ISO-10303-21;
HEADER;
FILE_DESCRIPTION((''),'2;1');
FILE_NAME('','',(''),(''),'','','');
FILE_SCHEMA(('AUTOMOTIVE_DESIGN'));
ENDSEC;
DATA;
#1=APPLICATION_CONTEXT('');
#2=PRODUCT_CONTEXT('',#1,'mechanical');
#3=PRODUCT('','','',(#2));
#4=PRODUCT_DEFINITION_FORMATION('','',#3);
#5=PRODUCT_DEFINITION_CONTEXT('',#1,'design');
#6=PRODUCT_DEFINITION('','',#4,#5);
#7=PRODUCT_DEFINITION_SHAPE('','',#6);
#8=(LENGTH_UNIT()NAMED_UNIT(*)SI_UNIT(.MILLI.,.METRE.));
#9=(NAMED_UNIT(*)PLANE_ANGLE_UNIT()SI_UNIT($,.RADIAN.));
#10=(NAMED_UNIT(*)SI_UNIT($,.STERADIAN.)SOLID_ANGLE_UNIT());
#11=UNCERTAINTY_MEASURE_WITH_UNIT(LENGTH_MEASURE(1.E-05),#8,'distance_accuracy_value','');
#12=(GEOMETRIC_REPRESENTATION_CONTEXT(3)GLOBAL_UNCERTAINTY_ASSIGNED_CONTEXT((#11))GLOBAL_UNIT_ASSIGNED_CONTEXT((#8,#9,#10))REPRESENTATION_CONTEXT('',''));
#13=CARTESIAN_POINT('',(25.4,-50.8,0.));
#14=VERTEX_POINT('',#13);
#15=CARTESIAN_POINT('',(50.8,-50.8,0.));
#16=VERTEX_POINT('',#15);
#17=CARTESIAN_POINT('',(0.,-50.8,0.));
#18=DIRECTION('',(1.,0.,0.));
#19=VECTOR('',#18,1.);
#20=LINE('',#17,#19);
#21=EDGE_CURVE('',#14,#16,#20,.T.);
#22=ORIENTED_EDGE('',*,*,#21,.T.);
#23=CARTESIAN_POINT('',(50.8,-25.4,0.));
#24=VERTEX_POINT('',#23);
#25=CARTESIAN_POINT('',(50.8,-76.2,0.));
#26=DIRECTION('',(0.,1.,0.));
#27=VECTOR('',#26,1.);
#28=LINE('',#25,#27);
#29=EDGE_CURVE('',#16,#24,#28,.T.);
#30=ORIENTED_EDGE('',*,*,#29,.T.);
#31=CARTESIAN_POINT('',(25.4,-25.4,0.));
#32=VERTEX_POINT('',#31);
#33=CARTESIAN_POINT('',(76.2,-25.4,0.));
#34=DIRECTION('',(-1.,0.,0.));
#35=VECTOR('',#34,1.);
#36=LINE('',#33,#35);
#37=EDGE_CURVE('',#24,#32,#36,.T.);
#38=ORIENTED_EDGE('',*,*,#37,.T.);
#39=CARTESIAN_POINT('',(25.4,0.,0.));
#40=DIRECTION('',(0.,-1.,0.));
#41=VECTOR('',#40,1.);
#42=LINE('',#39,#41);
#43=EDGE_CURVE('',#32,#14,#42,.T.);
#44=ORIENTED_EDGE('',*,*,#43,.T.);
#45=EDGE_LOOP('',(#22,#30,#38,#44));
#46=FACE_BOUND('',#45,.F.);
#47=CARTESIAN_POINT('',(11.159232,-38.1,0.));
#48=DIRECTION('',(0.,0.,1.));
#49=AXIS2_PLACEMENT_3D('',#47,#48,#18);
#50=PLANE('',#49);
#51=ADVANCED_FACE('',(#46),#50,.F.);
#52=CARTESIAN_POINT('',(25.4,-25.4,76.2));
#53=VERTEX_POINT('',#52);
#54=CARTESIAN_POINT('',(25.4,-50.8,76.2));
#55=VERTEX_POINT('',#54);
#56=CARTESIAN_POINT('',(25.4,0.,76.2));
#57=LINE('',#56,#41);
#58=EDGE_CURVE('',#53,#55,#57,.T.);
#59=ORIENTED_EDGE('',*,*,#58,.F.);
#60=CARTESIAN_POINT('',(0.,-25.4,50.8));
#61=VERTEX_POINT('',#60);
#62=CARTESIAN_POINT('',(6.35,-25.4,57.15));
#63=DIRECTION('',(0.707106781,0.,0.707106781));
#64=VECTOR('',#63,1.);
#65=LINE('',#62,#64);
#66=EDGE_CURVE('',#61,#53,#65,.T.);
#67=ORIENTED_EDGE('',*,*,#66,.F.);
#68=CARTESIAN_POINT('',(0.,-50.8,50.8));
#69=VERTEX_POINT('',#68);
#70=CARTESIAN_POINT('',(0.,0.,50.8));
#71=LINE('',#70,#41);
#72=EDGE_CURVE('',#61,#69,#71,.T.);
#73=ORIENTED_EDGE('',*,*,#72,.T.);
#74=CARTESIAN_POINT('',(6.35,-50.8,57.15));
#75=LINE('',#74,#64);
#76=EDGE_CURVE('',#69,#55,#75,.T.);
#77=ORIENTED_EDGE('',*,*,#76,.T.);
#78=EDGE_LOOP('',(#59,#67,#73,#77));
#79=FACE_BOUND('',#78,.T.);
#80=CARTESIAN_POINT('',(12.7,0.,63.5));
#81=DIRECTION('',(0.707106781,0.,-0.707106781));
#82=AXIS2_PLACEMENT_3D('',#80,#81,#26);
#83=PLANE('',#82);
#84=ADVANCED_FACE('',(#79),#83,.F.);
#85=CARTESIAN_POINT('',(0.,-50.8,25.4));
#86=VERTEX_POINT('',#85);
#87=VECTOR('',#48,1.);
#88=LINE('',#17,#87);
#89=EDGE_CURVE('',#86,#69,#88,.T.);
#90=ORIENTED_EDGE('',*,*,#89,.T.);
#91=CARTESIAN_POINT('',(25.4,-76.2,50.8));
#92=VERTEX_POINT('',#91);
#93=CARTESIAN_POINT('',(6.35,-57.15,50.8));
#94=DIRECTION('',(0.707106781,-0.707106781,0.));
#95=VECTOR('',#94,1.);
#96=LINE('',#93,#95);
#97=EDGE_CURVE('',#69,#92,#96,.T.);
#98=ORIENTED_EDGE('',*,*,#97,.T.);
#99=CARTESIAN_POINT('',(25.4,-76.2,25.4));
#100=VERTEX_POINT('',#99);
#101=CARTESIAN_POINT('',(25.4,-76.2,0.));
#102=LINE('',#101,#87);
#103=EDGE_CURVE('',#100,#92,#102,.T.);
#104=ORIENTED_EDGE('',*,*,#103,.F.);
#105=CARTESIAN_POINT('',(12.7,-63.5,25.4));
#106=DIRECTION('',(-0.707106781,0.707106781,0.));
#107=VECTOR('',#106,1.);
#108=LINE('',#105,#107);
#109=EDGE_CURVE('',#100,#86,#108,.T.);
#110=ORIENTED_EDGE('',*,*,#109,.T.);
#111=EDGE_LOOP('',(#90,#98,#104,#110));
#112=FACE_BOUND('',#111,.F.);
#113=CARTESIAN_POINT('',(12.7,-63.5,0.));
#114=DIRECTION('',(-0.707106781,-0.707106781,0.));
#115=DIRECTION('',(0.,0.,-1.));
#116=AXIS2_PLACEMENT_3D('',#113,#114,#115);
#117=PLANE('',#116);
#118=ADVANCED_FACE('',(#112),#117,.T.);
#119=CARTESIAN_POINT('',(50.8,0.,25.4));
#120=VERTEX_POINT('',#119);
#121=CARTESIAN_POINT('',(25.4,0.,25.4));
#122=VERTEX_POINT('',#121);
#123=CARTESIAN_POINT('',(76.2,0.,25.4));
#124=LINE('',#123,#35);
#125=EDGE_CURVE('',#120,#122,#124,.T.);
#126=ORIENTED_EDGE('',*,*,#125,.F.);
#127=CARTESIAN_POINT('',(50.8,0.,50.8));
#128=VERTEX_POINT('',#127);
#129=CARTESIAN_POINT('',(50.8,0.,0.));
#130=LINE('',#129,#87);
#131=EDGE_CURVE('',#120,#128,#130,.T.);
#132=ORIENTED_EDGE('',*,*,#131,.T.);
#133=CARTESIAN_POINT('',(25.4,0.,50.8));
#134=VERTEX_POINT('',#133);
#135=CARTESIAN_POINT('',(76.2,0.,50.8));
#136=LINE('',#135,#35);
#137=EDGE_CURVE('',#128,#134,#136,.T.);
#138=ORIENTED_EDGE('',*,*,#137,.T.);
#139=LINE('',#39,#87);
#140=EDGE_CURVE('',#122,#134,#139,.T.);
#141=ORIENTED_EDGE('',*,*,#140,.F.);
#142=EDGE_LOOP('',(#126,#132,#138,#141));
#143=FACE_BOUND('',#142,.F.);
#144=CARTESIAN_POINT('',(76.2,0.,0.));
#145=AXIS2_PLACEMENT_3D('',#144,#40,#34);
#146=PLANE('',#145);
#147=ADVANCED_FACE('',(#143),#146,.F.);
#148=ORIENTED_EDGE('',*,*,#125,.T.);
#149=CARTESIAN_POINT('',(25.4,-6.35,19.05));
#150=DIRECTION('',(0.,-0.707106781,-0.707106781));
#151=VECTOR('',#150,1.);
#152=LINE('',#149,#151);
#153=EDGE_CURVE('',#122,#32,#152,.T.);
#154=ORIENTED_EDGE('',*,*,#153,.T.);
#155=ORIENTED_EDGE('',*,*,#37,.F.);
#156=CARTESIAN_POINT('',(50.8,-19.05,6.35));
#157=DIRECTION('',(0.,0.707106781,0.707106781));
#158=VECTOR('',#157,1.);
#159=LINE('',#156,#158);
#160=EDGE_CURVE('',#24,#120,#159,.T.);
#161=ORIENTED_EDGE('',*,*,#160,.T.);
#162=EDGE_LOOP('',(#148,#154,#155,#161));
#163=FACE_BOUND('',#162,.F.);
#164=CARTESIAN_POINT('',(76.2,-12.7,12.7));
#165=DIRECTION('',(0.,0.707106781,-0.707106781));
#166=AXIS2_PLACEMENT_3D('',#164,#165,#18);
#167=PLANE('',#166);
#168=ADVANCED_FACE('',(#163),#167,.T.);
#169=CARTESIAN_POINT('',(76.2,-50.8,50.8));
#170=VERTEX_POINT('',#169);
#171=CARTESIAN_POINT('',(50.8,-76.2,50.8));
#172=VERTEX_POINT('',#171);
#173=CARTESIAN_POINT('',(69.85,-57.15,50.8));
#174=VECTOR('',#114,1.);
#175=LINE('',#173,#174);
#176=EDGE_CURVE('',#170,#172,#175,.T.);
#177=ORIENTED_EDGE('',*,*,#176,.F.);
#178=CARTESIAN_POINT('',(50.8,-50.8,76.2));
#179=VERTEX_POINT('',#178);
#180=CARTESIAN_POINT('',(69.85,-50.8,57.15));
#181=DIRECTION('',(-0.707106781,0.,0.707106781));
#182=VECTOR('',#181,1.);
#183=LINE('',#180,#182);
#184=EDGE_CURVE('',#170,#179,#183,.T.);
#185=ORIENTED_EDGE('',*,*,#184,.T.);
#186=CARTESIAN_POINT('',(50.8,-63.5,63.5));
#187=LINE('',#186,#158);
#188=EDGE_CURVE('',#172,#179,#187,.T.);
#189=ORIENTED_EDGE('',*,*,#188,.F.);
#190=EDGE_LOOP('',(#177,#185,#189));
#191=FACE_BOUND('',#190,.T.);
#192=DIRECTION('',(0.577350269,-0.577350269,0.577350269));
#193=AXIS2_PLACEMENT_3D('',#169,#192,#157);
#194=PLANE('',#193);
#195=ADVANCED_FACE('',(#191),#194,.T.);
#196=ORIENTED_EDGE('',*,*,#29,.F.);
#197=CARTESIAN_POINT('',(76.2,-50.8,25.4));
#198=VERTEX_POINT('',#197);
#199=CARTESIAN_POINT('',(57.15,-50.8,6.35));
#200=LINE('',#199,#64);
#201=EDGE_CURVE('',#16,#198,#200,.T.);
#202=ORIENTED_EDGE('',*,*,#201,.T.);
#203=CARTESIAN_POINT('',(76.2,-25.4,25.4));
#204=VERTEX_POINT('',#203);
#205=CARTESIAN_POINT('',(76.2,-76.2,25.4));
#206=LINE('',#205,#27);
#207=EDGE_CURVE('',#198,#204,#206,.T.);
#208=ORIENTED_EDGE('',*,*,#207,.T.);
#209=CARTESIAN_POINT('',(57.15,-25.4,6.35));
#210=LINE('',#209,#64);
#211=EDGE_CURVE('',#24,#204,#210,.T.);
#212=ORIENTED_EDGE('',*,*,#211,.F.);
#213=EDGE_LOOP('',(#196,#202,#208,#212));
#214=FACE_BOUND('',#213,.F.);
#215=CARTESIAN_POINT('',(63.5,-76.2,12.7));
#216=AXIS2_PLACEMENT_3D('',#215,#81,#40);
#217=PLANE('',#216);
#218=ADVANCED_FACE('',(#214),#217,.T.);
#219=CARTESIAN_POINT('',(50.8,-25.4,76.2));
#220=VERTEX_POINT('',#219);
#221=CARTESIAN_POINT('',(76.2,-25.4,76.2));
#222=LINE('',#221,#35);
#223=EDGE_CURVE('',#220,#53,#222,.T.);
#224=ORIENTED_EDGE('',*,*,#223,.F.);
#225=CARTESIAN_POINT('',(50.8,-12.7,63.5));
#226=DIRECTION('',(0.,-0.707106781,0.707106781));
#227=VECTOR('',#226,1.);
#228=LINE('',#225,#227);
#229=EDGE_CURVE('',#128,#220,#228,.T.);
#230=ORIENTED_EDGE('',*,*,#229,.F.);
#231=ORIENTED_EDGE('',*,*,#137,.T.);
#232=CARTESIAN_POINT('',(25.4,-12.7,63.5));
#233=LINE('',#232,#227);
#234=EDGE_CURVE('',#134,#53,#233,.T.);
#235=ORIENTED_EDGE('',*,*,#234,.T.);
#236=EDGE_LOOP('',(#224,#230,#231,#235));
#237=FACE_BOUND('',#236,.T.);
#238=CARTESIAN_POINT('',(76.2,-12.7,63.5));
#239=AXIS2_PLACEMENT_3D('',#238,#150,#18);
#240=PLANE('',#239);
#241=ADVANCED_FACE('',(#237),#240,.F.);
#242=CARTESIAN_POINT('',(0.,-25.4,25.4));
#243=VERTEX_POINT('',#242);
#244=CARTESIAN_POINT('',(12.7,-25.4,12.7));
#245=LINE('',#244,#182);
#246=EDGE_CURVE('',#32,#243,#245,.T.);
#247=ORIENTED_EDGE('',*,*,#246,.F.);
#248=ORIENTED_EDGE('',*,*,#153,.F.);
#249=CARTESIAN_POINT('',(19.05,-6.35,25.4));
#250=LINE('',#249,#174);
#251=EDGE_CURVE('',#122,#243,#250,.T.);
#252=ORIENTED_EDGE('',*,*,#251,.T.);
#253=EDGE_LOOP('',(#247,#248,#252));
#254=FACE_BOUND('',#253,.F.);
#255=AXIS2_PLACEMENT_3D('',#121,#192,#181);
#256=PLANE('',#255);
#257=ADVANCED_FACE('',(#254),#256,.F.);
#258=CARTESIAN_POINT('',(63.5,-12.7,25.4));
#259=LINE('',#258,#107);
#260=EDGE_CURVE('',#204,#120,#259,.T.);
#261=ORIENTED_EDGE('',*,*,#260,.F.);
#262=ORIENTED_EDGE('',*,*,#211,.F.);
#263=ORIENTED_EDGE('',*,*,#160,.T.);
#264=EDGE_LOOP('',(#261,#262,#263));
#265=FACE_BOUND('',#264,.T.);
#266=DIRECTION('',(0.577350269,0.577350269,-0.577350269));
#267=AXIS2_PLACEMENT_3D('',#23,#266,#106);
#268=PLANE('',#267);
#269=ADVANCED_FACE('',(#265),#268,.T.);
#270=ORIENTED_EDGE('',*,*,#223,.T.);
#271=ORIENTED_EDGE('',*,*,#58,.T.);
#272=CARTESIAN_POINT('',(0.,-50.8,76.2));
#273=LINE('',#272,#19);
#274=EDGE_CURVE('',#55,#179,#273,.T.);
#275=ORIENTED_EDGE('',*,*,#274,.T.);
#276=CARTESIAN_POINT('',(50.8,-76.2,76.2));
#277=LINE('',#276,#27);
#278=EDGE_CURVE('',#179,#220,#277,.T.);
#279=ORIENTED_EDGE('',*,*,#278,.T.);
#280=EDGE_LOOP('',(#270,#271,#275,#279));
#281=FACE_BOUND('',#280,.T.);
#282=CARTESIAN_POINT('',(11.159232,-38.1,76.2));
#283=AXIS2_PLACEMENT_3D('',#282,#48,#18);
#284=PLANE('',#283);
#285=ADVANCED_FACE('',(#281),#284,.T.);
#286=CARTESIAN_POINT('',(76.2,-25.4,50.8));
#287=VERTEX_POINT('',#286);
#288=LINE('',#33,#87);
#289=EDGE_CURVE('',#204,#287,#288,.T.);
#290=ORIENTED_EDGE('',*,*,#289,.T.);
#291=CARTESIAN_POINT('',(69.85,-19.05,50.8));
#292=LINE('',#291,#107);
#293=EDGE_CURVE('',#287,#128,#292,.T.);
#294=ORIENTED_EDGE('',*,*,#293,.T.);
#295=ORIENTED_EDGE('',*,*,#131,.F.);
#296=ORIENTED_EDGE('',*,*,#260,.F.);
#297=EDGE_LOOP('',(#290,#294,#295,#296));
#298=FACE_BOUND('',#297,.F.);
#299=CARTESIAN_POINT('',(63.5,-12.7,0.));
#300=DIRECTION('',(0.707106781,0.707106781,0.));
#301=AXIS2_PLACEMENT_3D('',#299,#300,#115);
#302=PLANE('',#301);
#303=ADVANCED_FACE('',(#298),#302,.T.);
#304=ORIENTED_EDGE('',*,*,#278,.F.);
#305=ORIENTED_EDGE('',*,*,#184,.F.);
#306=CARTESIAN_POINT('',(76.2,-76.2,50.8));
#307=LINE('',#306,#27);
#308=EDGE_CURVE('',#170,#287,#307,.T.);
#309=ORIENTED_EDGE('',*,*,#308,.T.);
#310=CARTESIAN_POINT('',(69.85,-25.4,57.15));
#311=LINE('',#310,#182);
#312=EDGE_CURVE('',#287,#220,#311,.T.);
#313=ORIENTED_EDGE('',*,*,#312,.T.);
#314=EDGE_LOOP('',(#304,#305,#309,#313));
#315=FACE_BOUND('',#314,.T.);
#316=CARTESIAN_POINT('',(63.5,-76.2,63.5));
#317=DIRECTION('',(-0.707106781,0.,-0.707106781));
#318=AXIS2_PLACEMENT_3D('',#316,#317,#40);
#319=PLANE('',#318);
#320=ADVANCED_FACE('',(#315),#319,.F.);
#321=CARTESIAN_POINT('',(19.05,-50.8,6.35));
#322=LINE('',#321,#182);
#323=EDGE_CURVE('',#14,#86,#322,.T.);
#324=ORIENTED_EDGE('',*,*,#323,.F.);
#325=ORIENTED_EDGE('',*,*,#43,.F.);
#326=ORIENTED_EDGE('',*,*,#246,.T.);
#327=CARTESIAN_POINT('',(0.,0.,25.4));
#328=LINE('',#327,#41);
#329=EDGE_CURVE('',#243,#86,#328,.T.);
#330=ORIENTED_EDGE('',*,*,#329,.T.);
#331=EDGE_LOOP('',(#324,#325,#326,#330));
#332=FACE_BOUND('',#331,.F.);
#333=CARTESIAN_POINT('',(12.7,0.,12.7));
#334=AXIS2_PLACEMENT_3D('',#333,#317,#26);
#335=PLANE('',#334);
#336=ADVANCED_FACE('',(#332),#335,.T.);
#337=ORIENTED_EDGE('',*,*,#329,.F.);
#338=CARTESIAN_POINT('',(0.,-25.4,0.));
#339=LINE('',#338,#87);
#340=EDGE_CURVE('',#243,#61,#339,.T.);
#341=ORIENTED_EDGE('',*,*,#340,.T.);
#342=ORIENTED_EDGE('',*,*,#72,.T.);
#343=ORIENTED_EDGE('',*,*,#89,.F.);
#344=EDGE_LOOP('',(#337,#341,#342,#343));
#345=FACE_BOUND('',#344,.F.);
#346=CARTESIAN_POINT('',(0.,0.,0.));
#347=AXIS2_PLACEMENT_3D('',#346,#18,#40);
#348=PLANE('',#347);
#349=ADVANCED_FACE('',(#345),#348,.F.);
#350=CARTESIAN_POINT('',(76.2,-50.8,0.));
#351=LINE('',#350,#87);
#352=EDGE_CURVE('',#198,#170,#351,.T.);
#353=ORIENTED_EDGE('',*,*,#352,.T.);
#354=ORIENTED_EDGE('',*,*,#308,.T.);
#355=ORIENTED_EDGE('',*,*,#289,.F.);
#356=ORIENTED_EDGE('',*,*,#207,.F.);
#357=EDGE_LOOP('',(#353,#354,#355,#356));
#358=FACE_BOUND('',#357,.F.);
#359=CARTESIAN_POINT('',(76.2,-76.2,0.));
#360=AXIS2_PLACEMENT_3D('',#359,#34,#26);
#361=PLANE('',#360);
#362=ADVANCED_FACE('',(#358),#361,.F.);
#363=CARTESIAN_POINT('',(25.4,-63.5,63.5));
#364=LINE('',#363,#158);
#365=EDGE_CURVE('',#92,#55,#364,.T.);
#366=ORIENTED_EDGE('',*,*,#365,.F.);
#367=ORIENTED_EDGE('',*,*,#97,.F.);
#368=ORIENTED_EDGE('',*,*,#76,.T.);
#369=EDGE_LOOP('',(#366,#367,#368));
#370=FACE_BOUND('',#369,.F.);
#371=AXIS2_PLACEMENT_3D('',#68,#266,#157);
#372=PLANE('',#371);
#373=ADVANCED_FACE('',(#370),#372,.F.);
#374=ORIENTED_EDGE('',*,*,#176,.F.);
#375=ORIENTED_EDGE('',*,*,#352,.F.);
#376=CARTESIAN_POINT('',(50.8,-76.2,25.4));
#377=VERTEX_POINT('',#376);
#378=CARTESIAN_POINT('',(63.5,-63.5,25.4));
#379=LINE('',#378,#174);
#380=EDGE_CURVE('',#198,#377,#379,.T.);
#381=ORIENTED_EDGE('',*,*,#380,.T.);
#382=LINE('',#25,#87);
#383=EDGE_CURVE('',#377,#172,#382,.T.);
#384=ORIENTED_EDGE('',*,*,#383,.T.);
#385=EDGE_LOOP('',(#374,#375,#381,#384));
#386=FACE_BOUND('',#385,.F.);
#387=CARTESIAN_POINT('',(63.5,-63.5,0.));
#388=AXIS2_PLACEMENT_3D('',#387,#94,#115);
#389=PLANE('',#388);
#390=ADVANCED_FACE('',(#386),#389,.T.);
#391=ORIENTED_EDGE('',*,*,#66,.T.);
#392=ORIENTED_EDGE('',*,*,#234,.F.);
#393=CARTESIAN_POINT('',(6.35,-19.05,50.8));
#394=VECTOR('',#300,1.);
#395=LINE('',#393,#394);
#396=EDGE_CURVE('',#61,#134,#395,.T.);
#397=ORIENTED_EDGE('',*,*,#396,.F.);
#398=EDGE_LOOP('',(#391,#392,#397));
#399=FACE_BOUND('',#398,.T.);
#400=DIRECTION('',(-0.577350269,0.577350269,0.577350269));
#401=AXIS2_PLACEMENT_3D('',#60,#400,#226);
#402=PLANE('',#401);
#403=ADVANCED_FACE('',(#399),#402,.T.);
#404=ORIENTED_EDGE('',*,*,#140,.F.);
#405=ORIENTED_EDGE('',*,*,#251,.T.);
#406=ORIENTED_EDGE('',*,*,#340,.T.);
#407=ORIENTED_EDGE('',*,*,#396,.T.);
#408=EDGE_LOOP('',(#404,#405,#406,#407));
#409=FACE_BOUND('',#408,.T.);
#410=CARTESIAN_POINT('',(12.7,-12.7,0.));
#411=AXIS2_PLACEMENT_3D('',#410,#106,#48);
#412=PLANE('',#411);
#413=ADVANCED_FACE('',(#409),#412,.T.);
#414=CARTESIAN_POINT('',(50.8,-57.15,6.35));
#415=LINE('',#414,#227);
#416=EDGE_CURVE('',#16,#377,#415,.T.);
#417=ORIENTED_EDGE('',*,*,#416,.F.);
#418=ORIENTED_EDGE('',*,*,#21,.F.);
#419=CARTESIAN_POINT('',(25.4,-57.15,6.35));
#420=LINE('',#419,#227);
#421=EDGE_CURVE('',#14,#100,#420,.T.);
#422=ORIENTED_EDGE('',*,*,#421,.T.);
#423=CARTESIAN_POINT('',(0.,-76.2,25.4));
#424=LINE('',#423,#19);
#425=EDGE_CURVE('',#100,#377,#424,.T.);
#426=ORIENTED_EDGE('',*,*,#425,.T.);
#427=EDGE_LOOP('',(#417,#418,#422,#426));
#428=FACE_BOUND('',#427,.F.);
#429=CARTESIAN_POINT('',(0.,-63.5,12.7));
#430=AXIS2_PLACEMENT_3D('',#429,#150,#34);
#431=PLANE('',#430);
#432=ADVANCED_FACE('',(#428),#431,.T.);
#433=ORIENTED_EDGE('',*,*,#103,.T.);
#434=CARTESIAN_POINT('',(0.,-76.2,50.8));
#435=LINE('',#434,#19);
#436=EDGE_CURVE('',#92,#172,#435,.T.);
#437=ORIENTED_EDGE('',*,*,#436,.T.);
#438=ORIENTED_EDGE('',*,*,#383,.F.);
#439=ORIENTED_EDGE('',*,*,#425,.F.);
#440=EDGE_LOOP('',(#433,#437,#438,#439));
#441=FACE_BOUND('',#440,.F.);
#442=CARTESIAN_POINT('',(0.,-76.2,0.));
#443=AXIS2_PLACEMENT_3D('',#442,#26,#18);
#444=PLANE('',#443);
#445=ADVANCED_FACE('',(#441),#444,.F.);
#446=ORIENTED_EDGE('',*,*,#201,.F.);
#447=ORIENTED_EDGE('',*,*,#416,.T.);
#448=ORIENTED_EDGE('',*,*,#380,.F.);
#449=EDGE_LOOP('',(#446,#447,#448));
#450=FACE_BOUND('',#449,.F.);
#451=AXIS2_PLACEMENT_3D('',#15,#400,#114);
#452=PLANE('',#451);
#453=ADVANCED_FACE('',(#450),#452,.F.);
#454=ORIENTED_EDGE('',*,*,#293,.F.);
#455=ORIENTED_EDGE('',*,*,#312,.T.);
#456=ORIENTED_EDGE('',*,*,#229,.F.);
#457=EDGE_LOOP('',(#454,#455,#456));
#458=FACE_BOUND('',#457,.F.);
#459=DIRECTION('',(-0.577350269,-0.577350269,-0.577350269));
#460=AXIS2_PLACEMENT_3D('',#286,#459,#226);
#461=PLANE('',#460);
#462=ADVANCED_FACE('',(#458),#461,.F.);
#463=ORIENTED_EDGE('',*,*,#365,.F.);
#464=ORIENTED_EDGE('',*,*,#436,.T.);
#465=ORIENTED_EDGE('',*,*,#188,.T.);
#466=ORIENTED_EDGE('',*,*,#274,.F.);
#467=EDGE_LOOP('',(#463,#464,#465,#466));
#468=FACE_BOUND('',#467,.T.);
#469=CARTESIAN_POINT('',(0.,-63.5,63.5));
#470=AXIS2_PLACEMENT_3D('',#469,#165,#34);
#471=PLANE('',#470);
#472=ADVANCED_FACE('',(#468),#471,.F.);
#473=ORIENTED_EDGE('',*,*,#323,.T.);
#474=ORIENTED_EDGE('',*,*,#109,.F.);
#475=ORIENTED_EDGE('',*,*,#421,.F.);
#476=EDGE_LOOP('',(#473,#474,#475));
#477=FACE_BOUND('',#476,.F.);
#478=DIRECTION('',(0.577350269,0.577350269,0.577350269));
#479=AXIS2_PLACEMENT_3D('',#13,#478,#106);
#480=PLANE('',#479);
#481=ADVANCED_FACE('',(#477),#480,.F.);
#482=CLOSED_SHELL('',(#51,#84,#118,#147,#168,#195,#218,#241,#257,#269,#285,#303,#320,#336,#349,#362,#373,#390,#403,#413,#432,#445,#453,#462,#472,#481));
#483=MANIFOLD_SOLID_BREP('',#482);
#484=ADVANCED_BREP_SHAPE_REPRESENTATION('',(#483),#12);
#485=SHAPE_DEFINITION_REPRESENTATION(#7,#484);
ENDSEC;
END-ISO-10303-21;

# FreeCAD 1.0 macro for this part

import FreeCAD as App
import Part
import Sketcher

V = App.Vector
Q = App.Units.Quantity


def add_polygon(sketch, points):
    """Adds a closed chain of lines whose ends are joined by coincident constraints."""
    first, n = sketch.GeometryCount, len(points)
    for a, b in zip(points, points[1:] + points[:1]):
        sketch.addGeometry(Part.LineSegment(App.Vector(*a, 0), App.Vector(*b, 0)), False)
    for i in range(n):
        sketch.addConstraint(Sketcher.Constraint("Coincident", first + i, 2, first + (i + 1) % n, 1))

doc = App.newDocument("Part")
body = doc.addObject("PartDesign::Body", "Body")

# Sketch on XY plane
sketch1 = body.newObject("Sketcher::SketchObject", "Sketch")
sketch1.AttachmentSupport = (doc.getObject("XY_Plane"), [""])
sketch1.MapMode = "FlatFace"
add_polygon(sketch1, [(0, 0), (0, -76), (76, -76), (76, 0)])  # lines 0-3
sketch1.addConstraint([
    Sketcher.Constraint("Vertical", 0),
    Sketcher.Constraint("Horizontal", 1),
    Sketcher.Constraint("Vertical", 2),
    Sketcher.Constraint("Horizontal", 3),
    Sketcher.Constraint("Coincident", 3, 2, -1, 1),
    Sketcher.Constraint("Equal", 3, 0),
    Sketcher.Constraint("DistanceX", 1, 1, 1, 2, Q("3 in")),
])
pad1 = body.newObject("PartDesign::Pad", "Pad")
pad1.Profile = sketch1
pad1.Length = Q("3 in")
doc.recompute()

chamfer = body.newObject("PartDesign::Chamfer", "Chamfer")
chamfer.Base = (pad1, ["Edge1"])
chamfer.UseAllEdges = True
chamfer.Size = Q("1 in")

doc.recompute()
